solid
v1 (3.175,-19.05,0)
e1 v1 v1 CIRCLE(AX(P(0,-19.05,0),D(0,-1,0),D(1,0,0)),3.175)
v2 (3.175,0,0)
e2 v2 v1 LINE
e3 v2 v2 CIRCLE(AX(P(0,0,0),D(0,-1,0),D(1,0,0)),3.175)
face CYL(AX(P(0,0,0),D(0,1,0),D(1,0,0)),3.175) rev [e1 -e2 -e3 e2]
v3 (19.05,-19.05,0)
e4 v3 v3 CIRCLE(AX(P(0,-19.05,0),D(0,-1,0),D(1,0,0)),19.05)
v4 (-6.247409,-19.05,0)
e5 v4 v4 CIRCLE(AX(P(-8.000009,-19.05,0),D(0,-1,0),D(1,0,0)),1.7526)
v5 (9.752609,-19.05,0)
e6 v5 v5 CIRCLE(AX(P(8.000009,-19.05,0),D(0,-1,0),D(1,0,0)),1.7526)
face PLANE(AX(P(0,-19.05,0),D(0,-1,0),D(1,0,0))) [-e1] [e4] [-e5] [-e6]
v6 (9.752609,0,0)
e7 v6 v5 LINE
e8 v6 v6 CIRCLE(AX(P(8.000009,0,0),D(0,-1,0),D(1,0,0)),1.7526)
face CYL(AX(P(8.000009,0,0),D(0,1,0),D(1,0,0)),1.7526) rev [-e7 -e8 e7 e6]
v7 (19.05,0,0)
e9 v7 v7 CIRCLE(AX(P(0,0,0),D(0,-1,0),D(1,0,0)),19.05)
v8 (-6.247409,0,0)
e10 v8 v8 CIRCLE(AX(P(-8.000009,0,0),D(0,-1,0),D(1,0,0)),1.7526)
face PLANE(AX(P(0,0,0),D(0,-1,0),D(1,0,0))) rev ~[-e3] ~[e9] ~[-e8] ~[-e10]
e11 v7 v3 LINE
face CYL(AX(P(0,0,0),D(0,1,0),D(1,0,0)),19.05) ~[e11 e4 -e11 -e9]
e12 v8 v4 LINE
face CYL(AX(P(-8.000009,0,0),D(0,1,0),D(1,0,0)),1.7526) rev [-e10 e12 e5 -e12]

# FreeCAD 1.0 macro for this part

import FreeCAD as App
import Part
import Sketcher

V = App.Vector
Q = App.Units.Quantity

doc = App.newDocument("Part")
params = doc.addObject("Spreadsheet::Sheet", "Params")
for row, (alias, value) in enumerate([
    ("sketch1_diameter", "1.5 in"),
    ("sketch1_diameter2", "0.25 in"),
    ("sketch1_diameter3", "0.138 in"),
    ("pad1_length", "0.75 in"),
], start=1):
    params.set(f"A{row}", alias)
    params.set(f"B{row}", "=" + value)
    params.setAlias(f"B{row}", alias)

body = doc.addObject("PartDesign::Body", "Body")

sketch1 = body.newObject("Sketcher::SketchObject", "Sketch")
sketch1.AttachmentSupport = (doc.getObject("XZ_Plane"), [""])
sketch1.MapMode = "FlatFace"
sketch1.addGeometry(Part.Circle(V(0, 0, 0), V(0, 0, 1), 19.05), False)
sketch1.addGeometry(Part.Circle(V(-8.000009, 0, 0), V(0, 0, 1), 1.7526), False)
sketch1.addGeometry(Part.Circle(V(0, 0, 0), V(0, 0, 1), 3.175), False)
sketch1.addGeometry(Part.Circle(V(8.000009, 0, 0), V(0, 0, 1), 1.7526), False)
sketch1.addConstraint(Sketcher.Constraint("Coincident", 0, 3, -1, 1))
sketch1.addConstraint(Sketcher.Constraint("Coincident", 2, 3, -1, 1))
sketch1.addConstraint(Sketcher.Constraint("Equal", 1, 3))
sketch1.addConstraint(Sketcher.Constraint("Symmetric", 1, 3, 3, 3, -1, 1))
sketch1.addConstraint(Sketcher.Constraint("PointOnObject", 1, 3, -1))
sketch1.addConstraint(Sketcher.Constraint("Diameter", 0, Q("1.5 in")))
sketch1.addConstraint(Sketcher.Constraint("Diameter", 2, Q("0.25 in")))
sketch1.addConstraint(Sketcher.Constraint("Diameter", 1, Q("0.138 in")))
sketch1.addConstraint(Sketcher.Constraint("DistanceX", 1, 3, -1, 1, Q("8.000009 mm")))
sketch1.setExpression("Constraints[5]", "Params.sketch1_diameter")
sketch1.setExpression("Constraints[6]", "Params.sketch1_diameter2")
sketch1.setExpression("Constraints[7]", "Params.sketch1_diameter3")
pad1 = body.newObject("PartDesign::Pad", "Pad")
pad1.Profile = sketch1
pad1.setExpression("Length", "Params.pad1_length")

doc.recompute()
